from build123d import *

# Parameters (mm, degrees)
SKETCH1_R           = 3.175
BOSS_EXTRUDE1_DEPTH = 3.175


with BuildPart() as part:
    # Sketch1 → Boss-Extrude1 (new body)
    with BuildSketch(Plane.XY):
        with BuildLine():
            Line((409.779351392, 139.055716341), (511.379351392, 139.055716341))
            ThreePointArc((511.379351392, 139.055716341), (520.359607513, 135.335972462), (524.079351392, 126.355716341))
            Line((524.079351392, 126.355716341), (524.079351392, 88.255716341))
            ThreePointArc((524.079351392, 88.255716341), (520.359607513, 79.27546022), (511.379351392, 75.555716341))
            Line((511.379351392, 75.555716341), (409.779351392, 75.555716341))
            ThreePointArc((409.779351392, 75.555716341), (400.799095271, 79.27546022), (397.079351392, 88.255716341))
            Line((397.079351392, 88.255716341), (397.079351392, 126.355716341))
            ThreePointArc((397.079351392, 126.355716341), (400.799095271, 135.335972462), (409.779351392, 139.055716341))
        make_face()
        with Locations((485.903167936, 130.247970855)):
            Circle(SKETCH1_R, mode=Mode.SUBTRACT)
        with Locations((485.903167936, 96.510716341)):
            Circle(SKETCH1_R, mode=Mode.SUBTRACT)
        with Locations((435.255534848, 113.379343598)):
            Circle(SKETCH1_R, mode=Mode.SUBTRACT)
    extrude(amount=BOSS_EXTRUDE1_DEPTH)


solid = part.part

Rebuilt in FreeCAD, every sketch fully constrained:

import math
import FreeCAD as App
import Part
import Sketcher

V = App.Vector
Q = App.Units.Quantity

doc = App.newDocument("Part")
body = doc.addObject("PartDesign::Body", "Body")

sketch1 = body.newObject("Sketcher::SketchObject", "Sketch")
sketch1.AttachmentSupport = (doc.getObject("XY_Plane"), [""])
sketch1.MapMode = "FlatFace"
sketch1.addGeometry(Part.LineSegment(V(511.4, 139.1, 0), V(409.8, 139.1, 0)), False)
sketch1.addGeometry(Part.ArcOfCircle(Part.Circle(V(409.8, 126.4, 0), V(0, 0, 1), 12.7), math.radians(90), math.radians(180)), False)
sketch1.addGeometry(Part.LineSegment(V(397.1, 126.4, 0), V(397.1, 88.3, 0)), False)
sketch1.addGeometry(Part.ArcOfCircle(Part.Circle(V(409.8, 88.3, 0), V(0, 0, 1), 12.7), math.radians(180), math.radians(270)), False)
sketch1.addGeometry(Part.LineSegment(V(409.8, 75.6, 0), V(511.4, 75.6, 0)), False)
sketch1.addGeometry(Part.ArcOfCircle(Part.Circle(V(511.4, 88.3, 0), V(0, 0, 1), 12.7), math.radians(-90), math.radians(0)), False)
sketch1.addGeometry(Part.LineSegment(V(524.1, 88.3, 0), V(524.1, 126.4, 0)), False)
sketch1.addGeometry(Part.ArcOfCircle(Part.Circle(V(511.4, 126.4, 0), V(0, 0, 1), 12.7), math.radians(0), math.radians(90)), False)
sketch1.addGeometry(Part.Circle(V(485.9, 96.5, 0), V(0, 0, 1), 3.2), False)
sketch1.addGeometry(Part.Circle(V(485.9, 130.2, 0), V(0, 0, 1), 3.2), False)
sketch1.addGeometry(Part.Circle(V(435.3, 113.4, 0), V(0, 0, 1), 3.2), False)
sketch1.addConstraint(Sketcher.Constraint("Tangent", 0, 2, 1, 1))
sketch1.addConstraint(Sketcher.Constraint("Tangent", 1, 2, 2, 1))
sketch1.addConstraint(Sketcher.Constraint("Tangent", 2, 2, 3, 1))
sketch1.addConstraint(Sketcher.Constraint("Tangent", 3, 2, 4, 1))
sketch1.addConstraint(Sketcher.Constraint("Tangent", 4, 2, 5, 1))
sketch1.addConstraint(Sketcher.Constraint("Tangent", 5, 2, 6, 1))
sketch1.addConstraint(Sketcher.Constraint("Tangent", 6, 2, 7, 1))
sketch1.addConstraint(Sketcher.Constraint("Tangent", 7, 2, 0, 1))
sketch1.addConstraint(Sketcher.Constraint("Horizontal", 0))
sketch1.addConstraint(Sketcher.Constraint("Vertical", 2))
sketch1.addConstraint(Sketcher.Constraint("Horizontal", 4))
sketch1.addConstraint(Sketcher.Constraint("Vertical", 6))
sketch1.addConstraint(Sketcher.Constraint("Equal", 1, 3))
sketch1.addConstraint(Sketcher.Constraint("Equal", 3, 5))
sketch1.addConstraint(Sketcher.Constraint("Equal", 5, 7))
sketch1.addConstraint(Sketcher.Constraint("Equal", 8, 9))
sketch1.addConstraint(Sketcher.Constraint("Equal", 9, 10))
sketch1.addConstraint(Sketcher.Constraint("Vertical", 8, 3, 9, 3))
sketch1.addConstraint(Sketcher.Constraint("Radius", 1, Q("0.5 in")))
sketch1.addConstraint(Sketcher.Constraint("Diameter", 8, Q("0.25 in")))
sketch1.addConstraint(Sketcher.Constraint("DistanceX", 0, 2, 0, 1, Q("4 in")))
sketch1.addConstraint(Sketcher.Constraint("DistanceY", 2, 2, 2, 1, Q("1.5 in")))
sketch1.addConstraint(Sketcher.Constraint("DistanceY", 5, 3, 8, 3, Q("0.325 in")))
sketch1.addConstraint(Sketcher.Constraint("DistanceX", -1, 1, 1, 3, Q("409.779351 mm")))
sketch1.addConstraint(Sketcher.Constraint("DistanceY", -1, 1, 9, 3, Q("130.247971 mm")))
sketch1.addConstraint(Sketcher.Constraint("DistanceY", -1, 1, 1, 3, Q("126.355716 mm")))
sketch1.addConstraint(Sketcher.Constraint("DistanceX", -1, 1, 8, 3, Q("485.903168 mm")))
sketch1.addConstraint(Sketcher.Constraint("DistanceX", -1, 1, 10, 3, Q("435.255535 mm")))
sketch1.addConstraint(Sketcher.Constraint("DistanceY", -1, 1, 10, 3, Q("113.379344 mm")))
pad1 = body.newObject("PartDesign::Pad", "Pad")
pad1.Profile = sketch1
pad1.Length = Q("0.125 in")

doc.recompute()
